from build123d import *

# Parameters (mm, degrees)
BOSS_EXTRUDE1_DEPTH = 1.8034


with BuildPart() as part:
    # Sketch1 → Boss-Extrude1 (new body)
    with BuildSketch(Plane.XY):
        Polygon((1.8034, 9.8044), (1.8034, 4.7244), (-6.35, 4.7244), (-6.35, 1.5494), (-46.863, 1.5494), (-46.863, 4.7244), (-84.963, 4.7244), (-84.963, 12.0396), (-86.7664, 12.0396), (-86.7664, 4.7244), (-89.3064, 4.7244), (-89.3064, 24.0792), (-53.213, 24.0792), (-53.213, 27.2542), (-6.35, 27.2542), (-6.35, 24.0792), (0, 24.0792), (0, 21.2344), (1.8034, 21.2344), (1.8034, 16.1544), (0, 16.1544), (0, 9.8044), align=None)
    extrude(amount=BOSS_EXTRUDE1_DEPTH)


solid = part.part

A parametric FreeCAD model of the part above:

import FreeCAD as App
import Part
import Sketcher
from FreeCAD import Vector
Q = App.Units.Quantity


def add_polygon(sketch, points):
    """Adds a closed chain of lines whose ends are joined by coincident constraints."""
    first, n = sketch.GeometryCount, len(points)
    for a, b in zip(points, points[1:] + points[:1]):
        sketch.addGeometry(Part.LineSegment(App.Vector(*a, 0), App.Vector(*b, 0)), False)
    for i in range(n):
        sketch.addConstraint(Sketcher.Constraint("Coincident", first + i, 2, first + (i + 1) % n, 1))

doc = App.newDocument("Part")
body = doc.addObject("PartDesign::Body", "Body")

sketch1 = body.newObject("Sketcher::SketchObject", "Sketch")
sketch1.AttachmentSupport = (doc.getObject("XY_Plane"), [""])
sketch1.MapMode = "FlatFace"
add_polygon(sketch1, [(1.8, 4.7), (1.8, 9.8), (0, 9.8), (0, 16.2), (1.8, 16.2), (1.8, 21.2), (0, 21.2), (0, 24.1), (-6.3, 24.1), (-6.3, 27.3), (-53.2, 27.3), (-53.2, 24.1), (-89.3, 24.1), (-89.3, 4.7), (-86.8, 4.7), (-86.8, 12), (-85, 12), (-85, 4.7), (-46.9, 4.7), (-46.9, 1.5), (-6.3, 1.5), (-6.3, 4.7)])
sketch1.addConstraint([
    Sketcher.Constraint("Vertical", 0),
    Sketcher.Constraint("Horizontal", 1),
    Sketcher.Constraint("Vertical", 2),
    Sketcher.Constraint("Horizontal", 3),
    Sketcher.Constraint("Vertical", 4),
    Sketcher.Constraint("Horizontal", 5),
    Sketcher.Constraint("Vertical", 6),
    Sketcher.Constraint("Horizontal", 7),
    Sketcher.Constraint("Vertical", 8),
    Sketcher.Constraint("Horizontal", 9),
    Sketcher.Constraint("Vertical", 10),
    Sketcher.Constraint("Horizontal", 11),
    Sketcher.Constraint("Vertical", 12),
    Sketcher.Constraint("Horizontal", 13),
    Sketcher.Constraint("Vertical", 14),
    Sketcher.Constraint("Horizontal", 15),
    Sketcher.Constraint("Vertical", 16),
    Sketcher.Constraint("Horizontal", 17),
    Sketcher.Constraint("Vertical", 18),
    Sketcher.Constraint("Horizontal", 19),
    Sketcher.Constraint("Vertical", 20),
    Sketcher.Constraint("Horizontal", 21),
    Sketcher.Constraint("PointOnObject", 1, 2, -2),
    Sketcher.Constraint("PointOnObject", 5, 2, -2),
    Sketcher.Constraint("Horizontal", 7, 2, 10, 2),
    Sketcher.Constraint("Horizontal", 13, 2, 16, 2),
    Sketcher.Constraint("Horizontal", 17, 2, 20, 2),
    Sketcher.Constraint("Vertical", 0, 2, 3, 2),
    Sketcher.Constraint("Vertical", 8, 2, 19, 2),
    Sketcher.Constraint("Equal", 5, 15),
    Sketcher.Constraint("Equal", 7, 2),
    Sketcher.Constraint("Equal", 0, 4),
    Sketcher.Constraint("Equal", 10, 18),
    Sketcher.Constraint("DistanceX", 13, 1, 13, 2, Q("0.1 in")),
    Sketcher.Constraint("DistanceX", 17, 1, 17, 2, Q("1.5 in")),
    Sketcher.Constraint("DistanceY", 0, 1, 0, 2, Q("0.2 in")),
    Sketcher.Constraint("DistanceX", 7, 2, 7, 1, Q("0.25 in")),
    Sketcher.Constraint("DistanceX", 1, 2, 1, 1, Q("0.071 in")),
    Sketcher.Constraint("DistanceX", 9, 2, 9, 1, Q("1.845 in")),
    Sketcher.Constraint("DistanceX", 11, 2, 11, 1, Q("1.421 in")),
    Sketcher.Constraint("DistanceY", 6, 1, 6, 2, Q("0.112 in")),
    Sketcher.Constraint("DistanceY", 8, 1, 8, 2, Q("0.125 in")),
    Sketcher.Constraint("DistanceY", 14, 1, 14, 2, Q("0.288 in")),
    Sketcher.Constraint("DistanceY", -1, 1, 0, 2, Q("0.386 in")),
])
pad1 = body.newObject("PartDesign::Pad", "Pad")
pad1.Profile = sketch1
pad1.Length = Q("0.071 in")

doc.recompute()
